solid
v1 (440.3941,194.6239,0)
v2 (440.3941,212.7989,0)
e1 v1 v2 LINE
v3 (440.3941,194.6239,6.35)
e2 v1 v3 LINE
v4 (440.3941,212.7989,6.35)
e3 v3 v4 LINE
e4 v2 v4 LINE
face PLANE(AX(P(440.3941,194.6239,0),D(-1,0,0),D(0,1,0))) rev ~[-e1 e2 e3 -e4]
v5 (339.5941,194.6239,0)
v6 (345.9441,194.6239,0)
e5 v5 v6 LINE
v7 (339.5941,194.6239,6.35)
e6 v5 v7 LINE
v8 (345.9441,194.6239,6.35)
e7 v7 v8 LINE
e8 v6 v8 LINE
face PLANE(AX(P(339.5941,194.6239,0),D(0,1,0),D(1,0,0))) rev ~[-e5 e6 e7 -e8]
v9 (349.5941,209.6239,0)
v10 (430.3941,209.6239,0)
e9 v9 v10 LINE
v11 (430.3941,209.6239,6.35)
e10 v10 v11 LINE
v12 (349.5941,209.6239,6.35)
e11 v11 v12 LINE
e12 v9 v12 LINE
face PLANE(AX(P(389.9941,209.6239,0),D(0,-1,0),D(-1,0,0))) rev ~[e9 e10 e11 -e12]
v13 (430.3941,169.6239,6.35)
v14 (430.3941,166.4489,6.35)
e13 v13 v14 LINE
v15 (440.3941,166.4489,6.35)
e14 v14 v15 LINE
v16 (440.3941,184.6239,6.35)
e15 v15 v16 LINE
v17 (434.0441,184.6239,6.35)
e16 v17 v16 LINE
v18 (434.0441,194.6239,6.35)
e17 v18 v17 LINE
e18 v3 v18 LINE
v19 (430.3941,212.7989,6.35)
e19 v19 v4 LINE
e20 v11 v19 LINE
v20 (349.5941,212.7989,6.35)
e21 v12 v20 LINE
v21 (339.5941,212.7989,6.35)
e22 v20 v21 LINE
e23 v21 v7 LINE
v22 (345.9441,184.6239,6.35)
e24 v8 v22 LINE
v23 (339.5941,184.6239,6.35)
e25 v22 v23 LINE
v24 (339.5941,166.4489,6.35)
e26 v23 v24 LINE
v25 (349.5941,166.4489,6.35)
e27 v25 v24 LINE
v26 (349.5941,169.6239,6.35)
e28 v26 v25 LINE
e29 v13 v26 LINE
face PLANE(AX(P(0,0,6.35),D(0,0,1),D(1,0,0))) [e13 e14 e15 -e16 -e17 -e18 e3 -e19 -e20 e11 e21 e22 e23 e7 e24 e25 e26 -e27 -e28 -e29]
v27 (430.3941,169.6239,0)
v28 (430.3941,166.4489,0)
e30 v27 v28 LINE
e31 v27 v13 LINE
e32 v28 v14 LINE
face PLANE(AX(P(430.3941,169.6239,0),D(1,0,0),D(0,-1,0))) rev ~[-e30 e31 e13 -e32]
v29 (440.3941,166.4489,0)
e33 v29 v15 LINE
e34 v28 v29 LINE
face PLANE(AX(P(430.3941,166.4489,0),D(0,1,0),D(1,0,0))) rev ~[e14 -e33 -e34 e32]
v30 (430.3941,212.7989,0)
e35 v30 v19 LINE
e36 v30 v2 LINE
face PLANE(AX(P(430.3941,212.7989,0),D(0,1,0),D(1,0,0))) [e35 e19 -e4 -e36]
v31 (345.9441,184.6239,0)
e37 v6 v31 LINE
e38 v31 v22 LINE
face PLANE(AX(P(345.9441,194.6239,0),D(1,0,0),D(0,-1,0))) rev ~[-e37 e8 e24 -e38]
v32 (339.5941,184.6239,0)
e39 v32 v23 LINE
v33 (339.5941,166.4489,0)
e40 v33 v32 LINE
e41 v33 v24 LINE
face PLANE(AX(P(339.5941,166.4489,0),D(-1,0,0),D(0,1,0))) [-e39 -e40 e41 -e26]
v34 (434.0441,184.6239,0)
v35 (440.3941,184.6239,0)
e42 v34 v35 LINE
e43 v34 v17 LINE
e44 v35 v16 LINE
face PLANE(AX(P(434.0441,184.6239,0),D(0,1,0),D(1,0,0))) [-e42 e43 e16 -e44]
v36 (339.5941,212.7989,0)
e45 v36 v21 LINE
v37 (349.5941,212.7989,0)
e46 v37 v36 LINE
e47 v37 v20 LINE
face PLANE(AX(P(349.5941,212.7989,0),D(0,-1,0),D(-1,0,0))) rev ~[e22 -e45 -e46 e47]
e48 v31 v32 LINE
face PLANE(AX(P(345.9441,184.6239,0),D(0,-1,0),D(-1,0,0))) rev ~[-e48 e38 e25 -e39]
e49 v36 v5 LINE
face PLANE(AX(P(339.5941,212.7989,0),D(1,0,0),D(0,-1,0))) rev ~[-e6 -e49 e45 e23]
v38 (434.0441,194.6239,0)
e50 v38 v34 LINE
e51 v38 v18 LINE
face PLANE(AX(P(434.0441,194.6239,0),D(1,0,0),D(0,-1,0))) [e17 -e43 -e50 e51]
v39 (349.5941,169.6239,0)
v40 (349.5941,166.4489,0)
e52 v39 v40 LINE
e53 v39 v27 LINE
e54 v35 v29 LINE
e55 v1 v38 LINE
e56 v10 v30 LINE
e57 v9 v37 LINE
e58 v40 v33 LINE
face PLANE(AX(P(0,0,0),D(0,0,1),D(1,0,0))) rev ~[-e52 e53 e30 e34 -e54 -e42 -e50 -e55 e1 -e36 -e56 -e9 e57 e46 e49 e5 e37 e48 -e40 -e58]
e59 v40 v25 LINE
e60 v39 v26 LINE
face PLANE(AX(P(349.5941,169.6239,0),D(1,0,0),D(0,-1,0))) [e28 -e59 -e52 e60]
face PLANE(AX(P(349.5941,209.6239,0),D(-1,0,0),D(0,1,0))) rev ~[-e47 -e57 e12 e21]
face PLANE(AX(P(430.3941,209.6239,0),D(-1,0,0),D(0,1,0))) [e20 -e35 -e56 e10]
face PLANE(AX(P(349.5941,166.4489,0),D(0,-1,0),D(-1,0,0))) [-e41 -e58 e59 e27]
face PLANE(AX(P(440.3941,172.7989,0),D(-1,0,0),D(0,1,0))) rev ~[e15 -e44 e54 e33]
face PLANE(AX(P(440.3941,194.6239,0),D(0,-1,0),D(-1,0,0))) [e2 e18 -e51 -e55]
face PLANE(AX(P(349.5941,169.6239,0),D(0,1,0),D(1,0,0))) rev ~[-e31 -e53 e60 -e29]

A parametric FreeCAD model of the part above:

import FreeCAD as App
import Part
import Sketcher
from FreeCAD import Vector
Q = App.Units.Quantity


def add_polygon(sketch, points):
    """Adds a closed chain of lines whose ends are joined by coincident constraints."""
    first, n = sketch.GeometryCount, len(points)
    for a, b in zip(points, points[1:] + points[:1]):
        sketch.addGeometry(Part.LineSegment(App.Vector(*a, 0), App.Vector(*b, 0)), False)
    for i in range(n):
        sketch.addConstraint(Sketcher.Constraint("Coincident", first + i, 2, first + (i + 1) % n, 1))

doc = App.newDocument("Part")
body = doc.addObject("PartDesign::Body", "Body")

sketch1 = body.newObject("Sketcher::SketchObject", "Sketch")
sketch1.AttachmentSupport = (doc.getObject("XY_Plane"), [""])
sketch1.MapMode = "FlatFace"
add_polygon(sketch1, [(349.6, 166.4), (349.6, 169.6), (430.4, 169.6), (430.4, 166.4), (440.4, 166.4), (440.4, 184.6), (434, 184.6), (434, 194.6), (440.4, 194.6), (440.4, 212.8), (430.4, 212.8), (430.4, 209.6), (349.6, 209.6), (349.6, 212.8), (339.6, 212.8), (339.6, 194.6), (345.9, 194.6), (345.9, 184.6), (339.6, 184.6), (339.6, 166.4)])
sketch1.addConstraint([
    Sketcher.Constraint("Vertical", 0),
    Sketcher.Constraint("Horizontal", 1),
    Sketcher.Constraint("Vertical", 2),
    Sketcher.Constraint("Horizontal", 3),
    Sketcher.Constraint("Vertical", 4),
    Sketcher.Constraint("Horizontal", 5),
    Sketcher.Constraint("Vertical", 6),
    Sketcher.Constraint("Horizontal", 7),
    Sketcher.Constraint("Vertical", 8),
    Sketcher.Constraint("Horizontal", 9),
    Sketcher.Constraint("Vertical", 10),
    Sketcher.Constraint("Horizontal", 11),
    Sketcher.Constraint("Vertical", 12),
    Sketcher.Constraint("Horizontal", 13),
    Sketcher.Constraint("Vertical", 14),
    Sketcher.Constraint("Horizontal", 15),
    Sketcher.Constraint("Vertical", 16),
    Sketcher.Constraint("Horizontal", 17),
    Sketcher.Constraint("Vertical", 18),
    Sketcher.Constraint("Horizontal", 19),
    Sketcher.Constraint("Horizontal", 9, 2, 12, 2),
    Sketcher.Constraint("Horizontal", 7, 2, 14, 2),
    Sketcher.Constraint("Horizontal", 5, 2, 16, 2),
    Sketcher.Constraint("Horizontal", 3, 2, 18, 2),
    Sketcher.Constraint("Vertical", 4, 2, 7, 2),
    Sketcher.Constraint("Vertical", 2, 2, 9, 2),
    Sketcher.Constraint("Vertical", 0, 2, 11, 2),
    Sketcher.Constraint("Vertical", 14, 2, 17, 2),
    Sketcher.Constraint("Equal", 9, 13),
    Sketcher.Constraint("Equal", 7, 15),
    Sketcher.Constraint("Equal", 19, 6),
    Sketcher.Constraint("Equal", 4, 8),
    Sketcher.Constraint("Equal", 2, 10),
    Sketcher.Constraint("DistanceX", 5, 2, 5, 1, Q("0.25 in")),
    Sketcher.Constraint("DistanceY", 0, 1, 0, 2, Q("0.125 in")),
    Sketcher.Constraint("DistanceX", 3, 1, 3, 2, Q("0.3937 in")),
    Sketcher.Constraint("DistanceY", 0, 2, 11, 2, Q("1.5748 in")),
    Sketcher.Constraint("DistanceX", 1, 1, 1, 2, Q("3.1811 in")),
    Sketcher.Constraint("DistanceY", -1, 1, 0, 2, Q("6.6781 in")),
    Sketcher.Constraint("DistanceX", -1, 1, 0, 2, Q("349.594 mm")),
])
pad1 = body.newObject("PartDesign::Pad", "Pad")
pad1.Profile = sketch1
pad1.Length = Q("0.25 in")

doc.recompute()
